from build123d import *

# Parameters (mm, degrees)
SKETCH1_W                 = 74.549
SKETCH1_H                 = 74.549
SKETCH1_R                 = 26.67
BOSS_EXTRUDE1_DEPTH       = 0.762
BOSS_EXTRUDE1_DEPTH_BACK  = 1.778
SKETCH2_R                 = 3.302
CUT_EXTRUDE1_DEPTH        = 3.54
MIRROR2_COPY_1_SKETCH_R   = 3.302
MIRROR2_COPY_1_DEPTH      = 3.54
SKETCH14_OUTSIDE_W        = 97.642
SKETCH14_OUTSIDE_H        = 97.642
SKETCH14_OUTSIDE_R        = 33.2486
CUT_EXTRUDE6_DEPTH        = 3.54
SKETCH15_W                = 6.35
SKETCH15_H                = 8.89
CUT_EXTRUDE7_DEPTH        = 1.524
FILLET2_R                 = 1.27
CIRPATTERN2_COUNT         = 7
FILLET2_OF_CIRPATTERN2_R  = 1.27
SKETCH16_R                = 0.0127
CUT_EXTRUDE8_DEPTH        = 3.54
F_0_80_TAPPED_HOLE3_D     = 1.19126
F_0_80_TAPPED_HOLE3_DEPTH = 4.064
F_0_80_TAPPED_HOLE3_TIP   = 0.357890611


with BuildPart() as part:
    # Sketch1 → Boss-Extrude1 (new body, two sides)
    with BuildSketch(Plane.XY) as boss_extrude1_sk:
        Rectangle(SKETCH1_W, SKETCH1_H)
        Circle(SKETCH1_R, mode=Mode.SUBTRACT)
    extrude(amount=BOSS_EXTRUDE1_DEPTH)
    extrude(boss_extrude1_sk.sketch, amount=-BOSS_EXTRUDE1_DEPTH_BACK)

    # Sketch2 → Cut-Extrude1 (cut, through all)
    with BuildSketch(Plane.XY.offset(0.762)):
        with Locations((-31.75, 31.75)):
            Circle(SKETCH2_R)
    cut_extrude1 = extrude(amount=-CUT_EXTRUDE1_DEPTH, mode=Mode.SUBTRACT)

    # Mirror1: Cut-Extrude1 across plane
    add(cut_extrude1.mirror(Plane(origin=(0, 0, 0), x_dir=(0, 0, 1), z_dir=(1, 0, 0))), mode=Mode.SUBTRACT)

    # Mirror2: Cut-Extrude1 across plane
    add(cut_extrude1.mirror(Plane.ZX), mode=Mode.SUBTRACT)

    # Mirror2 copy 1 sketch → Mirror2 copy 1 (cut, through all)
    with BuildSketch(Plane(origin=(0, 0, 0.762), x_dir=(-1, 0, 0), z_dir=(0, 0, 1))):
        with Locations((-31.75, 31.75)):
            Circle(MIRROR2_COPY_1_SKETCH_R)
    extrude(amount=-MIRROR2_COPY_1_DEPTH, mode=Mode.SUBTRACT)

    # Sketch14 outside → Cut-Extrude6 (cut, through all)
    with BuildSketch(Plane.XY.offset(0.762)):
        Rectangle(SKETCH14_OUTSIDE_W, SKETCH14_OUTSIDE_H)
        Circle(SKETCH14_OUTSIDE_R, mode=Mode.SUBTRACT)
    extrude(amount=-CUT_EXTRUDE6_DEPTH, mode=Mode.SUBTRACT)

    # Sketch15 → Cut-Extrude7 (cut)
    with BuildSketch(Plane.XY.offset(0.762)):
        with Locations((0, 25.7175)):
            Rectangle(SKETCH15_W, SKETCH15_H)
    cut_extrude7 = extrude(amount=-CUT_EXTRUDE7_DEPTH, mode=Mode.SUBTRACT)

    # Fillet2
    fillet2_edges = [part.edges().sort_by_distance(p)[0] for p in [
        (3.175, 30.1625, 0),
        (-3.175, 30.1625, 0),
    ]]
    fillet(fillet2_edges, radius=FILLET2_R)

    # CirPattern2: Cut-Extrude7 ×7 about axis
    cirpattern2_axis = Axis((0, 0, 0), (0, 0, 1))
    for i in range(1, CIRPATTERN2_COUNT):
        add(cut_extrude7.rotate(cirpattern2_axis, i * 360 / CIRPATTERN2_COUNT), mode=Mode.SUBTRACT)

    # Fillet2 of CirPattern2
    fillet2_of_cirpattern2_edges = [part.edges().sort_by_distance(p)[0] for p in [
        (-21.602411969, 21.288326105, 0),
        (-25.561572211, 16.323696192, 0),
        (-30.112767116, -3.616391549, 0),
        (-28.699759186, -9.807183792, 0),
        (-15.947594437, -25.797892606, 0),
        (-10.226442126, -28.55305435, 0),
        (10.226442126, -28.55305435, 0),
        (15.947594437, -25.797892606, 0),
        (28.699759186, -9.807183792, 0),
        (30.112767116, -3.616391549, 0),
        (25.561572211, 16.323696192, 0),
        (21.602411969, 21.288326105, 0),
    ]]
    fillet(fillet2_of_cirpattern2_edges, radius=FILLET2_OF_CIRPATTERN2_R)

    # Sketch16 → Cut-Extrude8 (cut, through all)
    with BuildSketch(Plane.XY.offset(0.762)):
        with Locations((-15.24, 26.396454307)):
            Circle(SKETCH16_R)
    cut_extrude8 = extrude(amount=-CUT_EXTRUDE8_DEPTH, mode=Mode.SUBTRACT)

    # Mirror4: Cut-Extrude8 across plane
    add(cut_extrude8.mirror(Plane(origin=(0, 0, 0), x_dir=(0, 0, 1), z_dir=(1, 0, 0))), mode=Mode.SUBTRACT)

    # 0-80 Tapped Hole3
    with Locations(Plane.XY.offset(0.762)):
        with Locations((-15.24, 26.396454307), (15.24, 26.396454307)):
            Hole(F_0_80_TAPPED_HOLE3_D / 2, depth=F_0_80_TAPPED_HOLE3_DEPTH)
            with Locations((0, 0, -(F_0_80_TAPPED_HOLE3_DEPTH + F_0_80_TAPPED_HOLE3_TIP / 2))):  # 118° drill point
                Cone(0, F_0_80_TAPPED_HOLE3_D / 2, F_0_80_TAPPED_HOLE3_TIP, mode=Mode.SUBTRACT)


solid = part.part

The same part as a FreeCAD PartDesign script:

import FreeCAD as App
import Part
import Sketcher
from FreeCAD import Vector
Q = App.Units.Quantity


def edges_at(feature, points):
    """Names of the edges that pass closest to the given points."""
    edges = feature.Shape.Edges
    near = lambda p: min(range(len(edges)), key=lambda i: edges[i].distToShape(Part.Vertex(*p))[0])
    return sorted({f"Edge{near(p) + 1}" for p in points})

doc = App.newDocument("Part")
body = doc.addObject("PartDesign::Body", "Body")

# Sketch on XY plane
sketch1 = body.newObject("Sketcher::SketchObject", "Sketch")
sketch1.AttachmentSupport = (doc.getObject("XY_Plane"), [""])
sketch1.MapMode = "FlatFace"
sketch1.addGeometry([
    Part.LineSegment(Vector(-37, 37, 0), Vector(-37, -37, 0)),  # 0
    Part.LineSegment(Vector(-37, -37, 0), Vector(37, -37, 0)),  # 1
    Part.LineSegment(Vector(37, -37, 0), Vector(37, 37, 0)),  # 2
    Part.LineSegment(Vector(37, 37, 0), Vector(-37, 37, 0)),  # 3
    Part.Circle(Vector(0, 0, 0), Vector(0, 0, 1), 27),  # 4
], False)
sketch1.addConstraint([
    Sketcher.Constraint("Coincident", 0, 2, 1, 1),
    Sketcher.Constraint("Coincident", 1, 2, 2, 1),
    Sketcher.Constraint("Coincident", 2, 2, 3, 1),
    Sketcher.Constraint("Coincident", 3, 2, 0, 1),
    Sketcher.Constraint("Vertical", 0),
    Sketcher.Constraint("Horizontal", 1),
    Sketcher.Constraint("Vertical", 2),
    Sketcher.Constraint("Horizontal", 3),
    Sketcher.Constraint("Coincident", 4, 3, -1, 1),
    Sketcher.Constraint("Symmetric", 0, 2, 2, 2, -1, 1),
    Sketcher.Constraint("Equal", 3, 0),
    Sketcher.Constraint("Diameter", 4, Q("2.1 in")),
    Sketcher.Constraint("DistanceX", 1, 1, 1, 2, Q("2.935 in")),
])
pad1 = body.newObject("PartDesign::Pad", "Pad")
pad1.Profile = sketch1
pad1.Type = "TwoLengths"
pad1.Length = Q("0.03 in")
pad1.Length2 = Q("0.07 in")

# Sketch on XY plane
sketch2 = body.newObject("Sketcher::SketchObject", "Sketch001")
sketch2.AttachmentSupport = (doc.getObject("XY_Plane"), [""])
sketch2.MapMode = "FlatFace"
sketch2.AttachmentOffset = App.Placement(Vector(0, 0, 0.03 * 25.4), App.Rotation())
sketch2.addGeometry(Part.Circle(Vector(-31.8, 31.8, 0), Vector(0, 0, 1), 3.3), False)
sketch2.addConstraint([
    Sketcher.Constraint("Diameter", 0, Q("0.26 in")),
    Sketcher.Constraint("DistanceX", 0, 3, -1, 1, Q("1.25 in")),
    Sketcher.Constraint("DistanceY", -1, 1, 0, 3, Q("1.25 in")),
])
pocket1 = body.newObject("PartDesign::Pocket", "Pocket")
pocket1.Profile = sketch2
pocket1.Type = "ThroughAll"
doc.recompute()

mirrored = body.newObject("PartDesign::Mirrored", "Mirrored")
mirrored.Originals = [pocket1]
mirrored.MirrorPlane = (doc.getObject("YZ_Plane"), [""])
body.Tip = mirrored
doc.recompute()

mirrored2 = body.newObject("PartDesign::Mirrored", "Mirrored001")
mirrored2.Originals = [pocket1]
mirrored2.MirrorPlane = (doc.getObject("XZ_Plane"), [""])
body.Tip = mirrored2

# Sketch on XY plane
sketch3 = body.newObject("Sketcher::SketchObject", "Sketch002")
sketch3.AttachmentSupport = (doc.getObject("XY_Plane"), [""])
sketch3.MapMode = "FlatFace"
sketch3.AttachmentOffset = App.Placement(Vector(0, 0, 0.03 * 25.4), App.Rotation())
sketch3.addGeometry(Part.Circle(Vector(31.8, -31.8, 0), Vector(0, 0, 1), 3.3), False)
sketch3.addConstraint([
    Sketcher.Constraint("Diameter", 0, Q("0.26 in")),
    Sketcher.Constraint("DistanceX", -1, 1, 0, 3, Q("1.25 in")),
    Sketcher.Constraint("DistanceY", 0, 3, -1, 1, Q("1.25 in")),
])
pocket2 = body.newObject("PartDesign::Pocket", "Pocket001")
pocket2.Profile = sketch3
pocket2.Type = "ThroughAll"

# Sketch on XY plane
sketch4 = body.newObject("Sketcher::SketchObject", "Sketch003")
sketch4.AttachmentSupport = (doc.getObject("XY_Plane"), [""])
sketch4.MapMode = "FlatFace"
sketch4.AttachmentOffset = App.Placement(Vector(0, 0, 0.03 * 25.4), App.Rotation())
sketch4.addGeometry([
    Part.LineSegment(Vector(-49, 49, 0), Vector(-49, -49, 0)),  # 0
    Part.LineSegment(Vector(-49, -49, 0), Vector(49, -49, 0)),  # 1
    Part.LineSegment(Vector(49, -49, 0), Vector(49, 49, 0)),  # 2
    Part.LineSegment(Vector(49, 49, 0), Vector(-49, 49, 0)),  # 3
    Part.Circle(Vector(0, 0, 0), Vector(0, 0, 1), 33),  # 4
], False)
sketch4.addConstraint([
    Sketcher.Constraint("Coincident", 0, 2, 1, 1),
    Sketcher.Constraint("Coincident", 1, 2, 2, 1),
    Sketcher.Constraint("Coincident", 2, 2, 3, 1),
    Sketcher.Constraint("Coincident", 3, 2, 0, 1),
    Sketcher.Constraint("Vertical", 0),
    Sketcher.Constraint("Horizontal", 1),
    Sketcher.Constraint("Vertical", 2),
    Sketcher.Constraint("Horizontal", 3),
    Sketcher.Constraint("Coincident", 4, 3, -1, 1),
    Sketcher.Constraint("Symmetric", 0, 2, 2, 2, -1, 1),
    Sketcher.Constraint("Equal", 3, 0),
    Sketcher.Constraint("Diameter", 4, Q("2.618 in")),
    Sketcher.Constraint("DistanceX", 1, 1, 1, 2, 97.642),
])
pocket3 = body.newObject("PartDesign::Pocket", "Pocket002")
pocket3.Profile = sketch4
pocket3.Type = "ThroughAll"

# Sketch on XY plane
sketch5 = body.newObject("Sketcher::SketchObject", "Sketch004")
sketch5.AttachmentSupport = (doc.getObject("XY_Plane"), [""])
sketch5.MapMode = "FlatFace"
sketch5.AttachmentOffset = App.Placement(Vector(0, 0, 0.03 * 25.4), App.Rotation())
sketch5.addGeometry([
    Part.LineSegment(Vector(-3, 30, 0), Vector(-3, 21, 0)),
    Part.LineSegment(Vector(-3, 21, 0), Vector(3, 21, 0)),
    Part.LineSegment(Vector(3, 21, 0), Vector(3, 30, 0)),
    Part.LineSegment(Vector(3, 30, 0), Vector(-3, 30, 0)),
], False)
sketch5.addConstraint([
    Sketcher.Constraint("Coincident", 0, 2, 1, 1),
    Sketcher.Constraint("Coincident", 1, 2, 2, 1),
    Sketcher.Constraint("Coincident", 2, 2, 3, 1),
    Sketcher.Constraint("Coincident", 3, 2, 0, 1),
    Sketcher.Constraint("Vertical", 0),
    Sketcher.Constraint("Horizontal", 1),
    Sketcher.Constraint("Vertical", 2),
    Sketcher.Constraint("Horizontal", 3),
    Sketcher.Constraint("DistanceX", 1, 1, 1, 2, Q("0.25 in")),
    Sketcher.Constraint("DistanceY", 0, 2, 0, 1, Q("0.35 in")),
    Sketcher.Constraint("DistanceX", 0, 2, -1, 1, Q("0.125 in")),
    Sketcher.Constraint("DistanceY", -1, 1, 2, 2, Q("1.1875 in")),
])
pocket4 = body.newObject("PartDesign::Pocket", "Pocket003")
pocket4.Profile = sketch5
pocket4.Length = Q("0.06 in")
doc.recompute()

fillet = body.newObject("PartDesign::Fillet", "Fillet")
fillet.Base = (pocket4, edges_at(pocket4, [(3.175, 30.163, 0), (-3.175, 30.163, 0)]))
fillet.Radius = Q("0.05 in")
doc.recompute()

polarpattern = body.newObject("PartDesign::PolarPattern", "PolarPattern")
polarpattern.Originals = [pocket4]
polarpattern.Axis = (doc.getObject("Z_Axis"), [""])
polarpattern.Angle = 360
polarpattern.Occurrences = 7
body.Tip = polarpattern
doc.recompute()

fillet2 = body.newObject("PartDesign::Fillet", "Fillet001")
fillet2.Base = (polarpattern, edges_at(polarpattern, [
    (-21.602, 21.288, 0),
    (-25.562, 16.324, 0),
    (-30.113, -3.616, 0),
    (-28.7, -9.807, 0),
    (-15.948, -25.798, 0),
    (-10.226, -28.553, 0),
    (10.226, -28.553, 0),
    (15.948, -25.798, 0),
    (28.7, -9.807, 0),
    (30.113, -3.616, 0),
    (25.562, 16.324, 0),
    (21.602, 21.288, 0),
]))
fillet2.Radius = Q("0.05 in")

# Sketch on XY plane
sketch6 = body.newObject("Sketcher::SketchObject", "Sketch005")
sketch6.AttachmentSupport = (doc.getObject("XY_Plane"), [""])
sketch6.MapMode = "FlatFace"
sketch6.AttachmentOffset = App.Placement(Vector(0, 0, 0.03 * 25.4), App.Rotation())
sketch6.addGeometry(Part.Circle(Vector(-15.24, 26.396, 0), Vector(0, 0, 1), 0.013), False)
sketch6.addConstraint([
    Sketcher.Constraint("Diameter", 0, Q("0.001 in")),
    Sketcher.Constraint("DistanceX", 0, 3, -1, 1, Q("0.6 in")),
    Sketcher.Constraint("DistanceY", -1, 1, 0, 3, 26.396454),
])
pocket5 = body.newObject("PartDesign::Pocket", "Pocket004")
pocket5.Profile = sketch6
pocket5.Type = "ThroughAll"
doc.recompute()

mirrored3 = body.newObject("PartDesign::Mirrored", "Mirrored002")
mirrored3.Originals = [pocket5]
mirrored3.MirrorPlane = (doc.getObject("YZ_Plane"), [""])
body.Tip = mirrored3

# Sketch on XY plane
sketch7 = body.newObject("Sketcher::SketchObject", "Sketch006")
sketch7.AttachmentSupport = (doc.getObject("XY_Plane"), [""])
sketch7.MapMode = "FlatFace"
sketch7.AttachmentOffset = App.Placement(Vector(0, 0, 0.03 * 25.4), App.Rotation())
sketch7.addGeometry([
    Part.Circle(Vector(-15.2, 26.4, 0), Vector(0, 0, 1), 0.6),
    Part.Circle(Vector(15.2, 26.4, 0), Vector(0, 0, 1), 0.6),
], False)
sketch7.addConstraint([
    Sketcher.Constraint("Equal", 0, 1),
    Sketcher.Constraint("Symmetric", 0, 3, 1, 3, -2),
    Sketcher.Constraint("Diameter", 0, Q("0.0469 in")),
    Sketcher.Constraint("DistanceX", 0, 3, -1, 1, Q("0.6 in")),
    Sketcher.Constraint("DistanceY", -1, 1, 0, 3, 26.396454),
])
doc.recompute()
hole = body.newObject("PartDesign::Hole", "Hole")
hole.Profile = sketch7
hole.ThreadType = "None"
hole.Diameter = Q("0.0469 in")
hole.DepthType = "Dimension"
hole.Depth = Q("0.16 in")
hole.DrillPoint = "Angled"
hole.DrillPointAngle = 118

doc.recompute()
